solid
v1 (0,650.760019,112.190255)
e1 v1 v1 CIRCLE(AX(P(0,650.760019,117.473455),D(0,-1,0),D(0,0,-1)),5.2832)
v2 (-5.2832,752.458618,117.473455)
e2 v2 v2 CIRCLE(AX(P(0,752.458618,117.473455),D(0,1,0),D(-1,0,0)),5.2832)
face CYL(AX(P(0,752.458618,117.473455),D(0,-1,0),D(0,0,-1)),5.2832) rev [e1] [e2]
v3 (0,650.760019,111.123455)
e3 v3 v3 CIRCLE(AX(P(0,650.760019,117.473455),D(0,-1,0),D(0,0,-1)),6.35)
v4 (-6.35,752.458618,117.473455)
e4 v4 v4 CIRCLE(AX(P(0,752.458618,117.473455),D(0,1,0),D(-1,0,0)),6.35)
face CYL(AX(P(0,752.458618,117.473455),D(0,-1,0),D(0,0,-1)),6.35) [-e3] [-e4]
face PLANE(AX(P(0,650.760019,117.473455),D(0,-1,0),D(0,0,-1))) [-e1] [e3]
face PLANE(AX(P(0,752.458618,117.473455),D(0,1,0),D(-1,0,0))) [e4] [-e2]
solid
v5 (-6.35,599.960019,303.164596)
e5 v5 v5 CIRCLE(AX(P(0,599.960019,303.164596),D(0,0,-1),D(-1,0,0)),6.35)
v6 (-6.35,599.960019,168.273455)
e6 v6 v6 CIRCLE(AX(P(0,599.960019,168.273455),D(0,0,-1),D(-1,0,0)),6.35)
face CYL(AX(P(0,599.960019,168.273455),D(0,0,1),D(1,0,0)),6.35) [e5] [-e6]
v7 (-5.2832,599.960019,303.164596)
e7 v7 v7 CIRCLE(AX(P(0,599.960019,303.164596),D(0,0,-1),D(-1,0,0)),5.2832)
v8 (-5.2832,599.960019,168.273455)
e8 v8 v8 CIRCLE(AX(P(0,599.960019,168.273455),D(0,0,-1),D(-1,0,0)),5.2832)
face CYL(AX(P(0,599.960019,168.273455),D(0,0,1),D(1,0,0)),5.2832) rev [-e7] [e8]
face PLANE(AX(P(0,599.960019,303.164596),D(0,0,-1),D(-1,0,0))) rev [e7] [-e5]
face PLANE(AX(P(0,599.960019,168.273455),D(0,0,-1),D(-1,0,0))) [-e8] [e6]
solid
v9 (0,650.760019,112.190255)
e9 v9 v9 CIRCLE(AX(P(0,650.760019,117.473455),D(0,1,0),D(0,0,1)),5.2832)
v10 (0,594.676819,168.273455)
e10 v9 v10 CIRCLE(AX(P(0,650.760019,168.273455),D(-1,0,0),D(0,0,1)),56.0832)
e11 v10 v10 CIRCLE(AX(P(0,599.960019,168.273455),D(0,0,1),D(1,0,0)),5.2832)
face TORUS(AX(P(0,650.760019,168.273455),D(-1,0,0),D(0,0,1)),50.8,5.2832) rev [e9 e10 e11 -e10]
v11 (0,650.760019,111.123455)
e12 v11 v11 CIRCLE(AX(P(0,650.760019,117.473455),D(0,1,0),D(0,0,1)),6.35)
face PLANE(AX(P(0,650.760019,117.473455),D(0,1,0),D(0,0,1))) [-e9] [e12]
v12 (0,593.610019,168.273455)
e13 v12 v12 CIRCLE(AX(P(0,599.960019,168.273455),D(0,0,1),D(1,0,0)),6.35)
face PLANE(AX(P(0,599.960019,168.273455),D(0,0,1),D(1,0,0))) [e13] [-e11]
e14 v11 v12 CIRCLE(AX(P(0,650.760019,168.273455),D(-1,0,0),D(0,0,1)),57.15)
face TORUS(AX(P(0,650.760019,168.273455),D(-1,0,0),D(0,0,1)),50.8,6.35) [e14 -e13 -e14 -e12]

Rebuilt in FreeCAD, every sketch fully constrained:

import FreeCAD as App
import Part
import Sketcher

V = App.Vector
Q = App.Units.Quantity

doc = App.newDocument("Part")
params = doc.addObject("Spreadsheet::Sheet", "Params")
for row, (alias, value) in enumerate([
    ("sketch1_diameter", "0.5 in"),
    ("sketch1_diameter2", "0.416 in"),
    ("pad1_length", "134.891141 mm"),
    ("sketch2_diameter", "0.5 in"),
    ("sketch2_diameter2", "0.416 in"),
    ("revolution_angle", "90 deg"),
    ("sketch3_diameter", "0.5 in"),
    ("sketch3_diameter2", "0.416 in"),
    ("pad2_length", "101.698599 mm"),
], start=1):
    params.set(f"A{row}", alias)
    params.set(f"B{row}", "=" + value)
    params.setAlias(f"B{row}", alias)

body = doc.addObject("PartDesign::Body", "Body")

# Sketch on XY plane
sketch1 = body.newObject("Sketcher::SketchObject", "Sketch")
sketch1.AttachmentSupport = (doc.getObject("XY_Plane"), [""])
sketch1.MapMode = "FlatFace"
sketch1.AttachmentOffset = App.Placement(V(0, 0, 303.164596), App.Rotation())
sketch1.addGeometry([
    Part.Circle(V(0, 600, 0), V(0, 0, 1), 6),
    Part.Circle(V(0, 600, 0), V(0, 0, 1), 5),
], False)
sketch1.addConstraint([
    Sketcher.Constraint("Coincident", 1, 3, 0, 3),
    Sketcher.Constraint("PointOnObject", 0, 3, -2),
    Sketcher.Constraint("Diameter", 0, Q("0.5 in")),
    Sketcher.Constraint("Diameter", 1, Q("0.416 in")),
    Sketcher.Constraint("DistanceY", -1, 1, 0, 3, Q("599.960019 mm")),
])
sketch1.setExpression("Constraints[2]", "Params.sketch1_diameter")
sketch1.setExpression("Constraints[3]", "Params.sketch1_diameter2")
pad1 = body.newObject("PartDesign::Pad", "Pad")
pad1.Profile = sketch1
pad1.setExpression("Length", "Params.pad1_length")
pad1.Reversed = True
body2 = doc.addObject("PartDesign::Body", "Body001")

# Sketch on XY plane
sketch2 = body2.newObject("Sketcher::SketchObject", "Sketch001")
sketch2.AttachmentSupport = (doc.getObject("XY_Plane001"), [""])
sketch2.MapMode = "FlatFace"
sketch2.AttachmentOffset = App.Placement(V(0, 0, 168.273455), App.Rotation())
sketch2.addGeometry([
    Part.Circle(V(0, 600, 0), V(0, 0, 1), 6),
    Part.Circle(V(0, 600, 0), V(0, 0, 1), 5),
], False)
sketch2.addGeometry(Part.LineSegment(V(0, 651, 0), V(10, 651, 0)), True)  # axis
sketch2.addConstraint([
    Sketcher.Constraint("Horizontal", 2),
    Sketcher.Constraint("Coincident", 1, 3, 0, 3),
    Sketcher.Constraint("PointOnObject", 0, 3, -2),
    Sketcher.Constraint("PointOnObject", 2, 1, -2),
    Sketcher.Constraint("Diameter", 0, Q("0.5 in")),
    Sketcher.Constraint("Diameter", 1, Q("0.416 in")),
    Sketcher.Constraint("DistanceY", 0, 3, 2, 1, Q("2 in")),
    Sketcher.Constraint("DistanceX", 2, 1, 2, 2, Q("10 mm")),
    Sketcher.Constraint("DistanceY", -1, 1, 0, 3, Q("599.960019 mm")),
])
sketch2.setExpression("Constraints[4]", "Params.sketch2_diameter")
sketch2.setExpression("Constraints[5]", "Params.sketch2_diameter2")
revolution = body2.newObject("PartDesign::Revolution", "Revolution")
revolution.Profile = sketch2
revolution.ReferenceAxis = (sketch2, ["Axis0"])
revolution.setExpression("Angle", "Params.revolution_angle")
body3 = doc.addObject("PartDesign::Body", "Body002")

# Sketch on XZ plane
sketch3 = body3.newObject("Sketcher::SketchObject", "Sketch002")
sketch3.AttachmentSupport = (doc.getObject("XZ_Plane002"), [""])
sketch3.MapMode = "FlatFace"
sketch3.AttachmentOffset = App.Placement(V(0, 0, -650.760019), App.Rotation())
sketch3.addGeometry([
    Part.Circle(V(0, 117, 0), V(0, 0, 1), 6),
    Part.Circle(V(0, 117, 0), V(0, 0, 1), 5),
], False)
sketch3.addConstraint([
    Sketcher.Constraint("Coincident", 1, 3, 0, 3),
    Sketcher.Constraint("PointOnObject", 0, 3, -2),
    Sketcher.Constraint("Diameter", 0, Q("0.5 in")),
    Sketcher.Constraint("Diameter", 1, Q("0.416 in")),
    Sketcher.Constraint("DistanceY", -1, 1, 0, 3, Q("117.473455 mm")),
])
sketch3.setExpression("Constraints[2]", "Params.sketch3_diameter")
sketch3.setExpression("Constraints[3]", "Params.sketch3_diameter2")
pad2 = body3.newObject("PartDesign::Pad", "Pad001")
pad2.Profile = sketch3
pad2.setExpression("Length", "Params.pad2_length")
pad2.Reversed = True

doc.recompute()
